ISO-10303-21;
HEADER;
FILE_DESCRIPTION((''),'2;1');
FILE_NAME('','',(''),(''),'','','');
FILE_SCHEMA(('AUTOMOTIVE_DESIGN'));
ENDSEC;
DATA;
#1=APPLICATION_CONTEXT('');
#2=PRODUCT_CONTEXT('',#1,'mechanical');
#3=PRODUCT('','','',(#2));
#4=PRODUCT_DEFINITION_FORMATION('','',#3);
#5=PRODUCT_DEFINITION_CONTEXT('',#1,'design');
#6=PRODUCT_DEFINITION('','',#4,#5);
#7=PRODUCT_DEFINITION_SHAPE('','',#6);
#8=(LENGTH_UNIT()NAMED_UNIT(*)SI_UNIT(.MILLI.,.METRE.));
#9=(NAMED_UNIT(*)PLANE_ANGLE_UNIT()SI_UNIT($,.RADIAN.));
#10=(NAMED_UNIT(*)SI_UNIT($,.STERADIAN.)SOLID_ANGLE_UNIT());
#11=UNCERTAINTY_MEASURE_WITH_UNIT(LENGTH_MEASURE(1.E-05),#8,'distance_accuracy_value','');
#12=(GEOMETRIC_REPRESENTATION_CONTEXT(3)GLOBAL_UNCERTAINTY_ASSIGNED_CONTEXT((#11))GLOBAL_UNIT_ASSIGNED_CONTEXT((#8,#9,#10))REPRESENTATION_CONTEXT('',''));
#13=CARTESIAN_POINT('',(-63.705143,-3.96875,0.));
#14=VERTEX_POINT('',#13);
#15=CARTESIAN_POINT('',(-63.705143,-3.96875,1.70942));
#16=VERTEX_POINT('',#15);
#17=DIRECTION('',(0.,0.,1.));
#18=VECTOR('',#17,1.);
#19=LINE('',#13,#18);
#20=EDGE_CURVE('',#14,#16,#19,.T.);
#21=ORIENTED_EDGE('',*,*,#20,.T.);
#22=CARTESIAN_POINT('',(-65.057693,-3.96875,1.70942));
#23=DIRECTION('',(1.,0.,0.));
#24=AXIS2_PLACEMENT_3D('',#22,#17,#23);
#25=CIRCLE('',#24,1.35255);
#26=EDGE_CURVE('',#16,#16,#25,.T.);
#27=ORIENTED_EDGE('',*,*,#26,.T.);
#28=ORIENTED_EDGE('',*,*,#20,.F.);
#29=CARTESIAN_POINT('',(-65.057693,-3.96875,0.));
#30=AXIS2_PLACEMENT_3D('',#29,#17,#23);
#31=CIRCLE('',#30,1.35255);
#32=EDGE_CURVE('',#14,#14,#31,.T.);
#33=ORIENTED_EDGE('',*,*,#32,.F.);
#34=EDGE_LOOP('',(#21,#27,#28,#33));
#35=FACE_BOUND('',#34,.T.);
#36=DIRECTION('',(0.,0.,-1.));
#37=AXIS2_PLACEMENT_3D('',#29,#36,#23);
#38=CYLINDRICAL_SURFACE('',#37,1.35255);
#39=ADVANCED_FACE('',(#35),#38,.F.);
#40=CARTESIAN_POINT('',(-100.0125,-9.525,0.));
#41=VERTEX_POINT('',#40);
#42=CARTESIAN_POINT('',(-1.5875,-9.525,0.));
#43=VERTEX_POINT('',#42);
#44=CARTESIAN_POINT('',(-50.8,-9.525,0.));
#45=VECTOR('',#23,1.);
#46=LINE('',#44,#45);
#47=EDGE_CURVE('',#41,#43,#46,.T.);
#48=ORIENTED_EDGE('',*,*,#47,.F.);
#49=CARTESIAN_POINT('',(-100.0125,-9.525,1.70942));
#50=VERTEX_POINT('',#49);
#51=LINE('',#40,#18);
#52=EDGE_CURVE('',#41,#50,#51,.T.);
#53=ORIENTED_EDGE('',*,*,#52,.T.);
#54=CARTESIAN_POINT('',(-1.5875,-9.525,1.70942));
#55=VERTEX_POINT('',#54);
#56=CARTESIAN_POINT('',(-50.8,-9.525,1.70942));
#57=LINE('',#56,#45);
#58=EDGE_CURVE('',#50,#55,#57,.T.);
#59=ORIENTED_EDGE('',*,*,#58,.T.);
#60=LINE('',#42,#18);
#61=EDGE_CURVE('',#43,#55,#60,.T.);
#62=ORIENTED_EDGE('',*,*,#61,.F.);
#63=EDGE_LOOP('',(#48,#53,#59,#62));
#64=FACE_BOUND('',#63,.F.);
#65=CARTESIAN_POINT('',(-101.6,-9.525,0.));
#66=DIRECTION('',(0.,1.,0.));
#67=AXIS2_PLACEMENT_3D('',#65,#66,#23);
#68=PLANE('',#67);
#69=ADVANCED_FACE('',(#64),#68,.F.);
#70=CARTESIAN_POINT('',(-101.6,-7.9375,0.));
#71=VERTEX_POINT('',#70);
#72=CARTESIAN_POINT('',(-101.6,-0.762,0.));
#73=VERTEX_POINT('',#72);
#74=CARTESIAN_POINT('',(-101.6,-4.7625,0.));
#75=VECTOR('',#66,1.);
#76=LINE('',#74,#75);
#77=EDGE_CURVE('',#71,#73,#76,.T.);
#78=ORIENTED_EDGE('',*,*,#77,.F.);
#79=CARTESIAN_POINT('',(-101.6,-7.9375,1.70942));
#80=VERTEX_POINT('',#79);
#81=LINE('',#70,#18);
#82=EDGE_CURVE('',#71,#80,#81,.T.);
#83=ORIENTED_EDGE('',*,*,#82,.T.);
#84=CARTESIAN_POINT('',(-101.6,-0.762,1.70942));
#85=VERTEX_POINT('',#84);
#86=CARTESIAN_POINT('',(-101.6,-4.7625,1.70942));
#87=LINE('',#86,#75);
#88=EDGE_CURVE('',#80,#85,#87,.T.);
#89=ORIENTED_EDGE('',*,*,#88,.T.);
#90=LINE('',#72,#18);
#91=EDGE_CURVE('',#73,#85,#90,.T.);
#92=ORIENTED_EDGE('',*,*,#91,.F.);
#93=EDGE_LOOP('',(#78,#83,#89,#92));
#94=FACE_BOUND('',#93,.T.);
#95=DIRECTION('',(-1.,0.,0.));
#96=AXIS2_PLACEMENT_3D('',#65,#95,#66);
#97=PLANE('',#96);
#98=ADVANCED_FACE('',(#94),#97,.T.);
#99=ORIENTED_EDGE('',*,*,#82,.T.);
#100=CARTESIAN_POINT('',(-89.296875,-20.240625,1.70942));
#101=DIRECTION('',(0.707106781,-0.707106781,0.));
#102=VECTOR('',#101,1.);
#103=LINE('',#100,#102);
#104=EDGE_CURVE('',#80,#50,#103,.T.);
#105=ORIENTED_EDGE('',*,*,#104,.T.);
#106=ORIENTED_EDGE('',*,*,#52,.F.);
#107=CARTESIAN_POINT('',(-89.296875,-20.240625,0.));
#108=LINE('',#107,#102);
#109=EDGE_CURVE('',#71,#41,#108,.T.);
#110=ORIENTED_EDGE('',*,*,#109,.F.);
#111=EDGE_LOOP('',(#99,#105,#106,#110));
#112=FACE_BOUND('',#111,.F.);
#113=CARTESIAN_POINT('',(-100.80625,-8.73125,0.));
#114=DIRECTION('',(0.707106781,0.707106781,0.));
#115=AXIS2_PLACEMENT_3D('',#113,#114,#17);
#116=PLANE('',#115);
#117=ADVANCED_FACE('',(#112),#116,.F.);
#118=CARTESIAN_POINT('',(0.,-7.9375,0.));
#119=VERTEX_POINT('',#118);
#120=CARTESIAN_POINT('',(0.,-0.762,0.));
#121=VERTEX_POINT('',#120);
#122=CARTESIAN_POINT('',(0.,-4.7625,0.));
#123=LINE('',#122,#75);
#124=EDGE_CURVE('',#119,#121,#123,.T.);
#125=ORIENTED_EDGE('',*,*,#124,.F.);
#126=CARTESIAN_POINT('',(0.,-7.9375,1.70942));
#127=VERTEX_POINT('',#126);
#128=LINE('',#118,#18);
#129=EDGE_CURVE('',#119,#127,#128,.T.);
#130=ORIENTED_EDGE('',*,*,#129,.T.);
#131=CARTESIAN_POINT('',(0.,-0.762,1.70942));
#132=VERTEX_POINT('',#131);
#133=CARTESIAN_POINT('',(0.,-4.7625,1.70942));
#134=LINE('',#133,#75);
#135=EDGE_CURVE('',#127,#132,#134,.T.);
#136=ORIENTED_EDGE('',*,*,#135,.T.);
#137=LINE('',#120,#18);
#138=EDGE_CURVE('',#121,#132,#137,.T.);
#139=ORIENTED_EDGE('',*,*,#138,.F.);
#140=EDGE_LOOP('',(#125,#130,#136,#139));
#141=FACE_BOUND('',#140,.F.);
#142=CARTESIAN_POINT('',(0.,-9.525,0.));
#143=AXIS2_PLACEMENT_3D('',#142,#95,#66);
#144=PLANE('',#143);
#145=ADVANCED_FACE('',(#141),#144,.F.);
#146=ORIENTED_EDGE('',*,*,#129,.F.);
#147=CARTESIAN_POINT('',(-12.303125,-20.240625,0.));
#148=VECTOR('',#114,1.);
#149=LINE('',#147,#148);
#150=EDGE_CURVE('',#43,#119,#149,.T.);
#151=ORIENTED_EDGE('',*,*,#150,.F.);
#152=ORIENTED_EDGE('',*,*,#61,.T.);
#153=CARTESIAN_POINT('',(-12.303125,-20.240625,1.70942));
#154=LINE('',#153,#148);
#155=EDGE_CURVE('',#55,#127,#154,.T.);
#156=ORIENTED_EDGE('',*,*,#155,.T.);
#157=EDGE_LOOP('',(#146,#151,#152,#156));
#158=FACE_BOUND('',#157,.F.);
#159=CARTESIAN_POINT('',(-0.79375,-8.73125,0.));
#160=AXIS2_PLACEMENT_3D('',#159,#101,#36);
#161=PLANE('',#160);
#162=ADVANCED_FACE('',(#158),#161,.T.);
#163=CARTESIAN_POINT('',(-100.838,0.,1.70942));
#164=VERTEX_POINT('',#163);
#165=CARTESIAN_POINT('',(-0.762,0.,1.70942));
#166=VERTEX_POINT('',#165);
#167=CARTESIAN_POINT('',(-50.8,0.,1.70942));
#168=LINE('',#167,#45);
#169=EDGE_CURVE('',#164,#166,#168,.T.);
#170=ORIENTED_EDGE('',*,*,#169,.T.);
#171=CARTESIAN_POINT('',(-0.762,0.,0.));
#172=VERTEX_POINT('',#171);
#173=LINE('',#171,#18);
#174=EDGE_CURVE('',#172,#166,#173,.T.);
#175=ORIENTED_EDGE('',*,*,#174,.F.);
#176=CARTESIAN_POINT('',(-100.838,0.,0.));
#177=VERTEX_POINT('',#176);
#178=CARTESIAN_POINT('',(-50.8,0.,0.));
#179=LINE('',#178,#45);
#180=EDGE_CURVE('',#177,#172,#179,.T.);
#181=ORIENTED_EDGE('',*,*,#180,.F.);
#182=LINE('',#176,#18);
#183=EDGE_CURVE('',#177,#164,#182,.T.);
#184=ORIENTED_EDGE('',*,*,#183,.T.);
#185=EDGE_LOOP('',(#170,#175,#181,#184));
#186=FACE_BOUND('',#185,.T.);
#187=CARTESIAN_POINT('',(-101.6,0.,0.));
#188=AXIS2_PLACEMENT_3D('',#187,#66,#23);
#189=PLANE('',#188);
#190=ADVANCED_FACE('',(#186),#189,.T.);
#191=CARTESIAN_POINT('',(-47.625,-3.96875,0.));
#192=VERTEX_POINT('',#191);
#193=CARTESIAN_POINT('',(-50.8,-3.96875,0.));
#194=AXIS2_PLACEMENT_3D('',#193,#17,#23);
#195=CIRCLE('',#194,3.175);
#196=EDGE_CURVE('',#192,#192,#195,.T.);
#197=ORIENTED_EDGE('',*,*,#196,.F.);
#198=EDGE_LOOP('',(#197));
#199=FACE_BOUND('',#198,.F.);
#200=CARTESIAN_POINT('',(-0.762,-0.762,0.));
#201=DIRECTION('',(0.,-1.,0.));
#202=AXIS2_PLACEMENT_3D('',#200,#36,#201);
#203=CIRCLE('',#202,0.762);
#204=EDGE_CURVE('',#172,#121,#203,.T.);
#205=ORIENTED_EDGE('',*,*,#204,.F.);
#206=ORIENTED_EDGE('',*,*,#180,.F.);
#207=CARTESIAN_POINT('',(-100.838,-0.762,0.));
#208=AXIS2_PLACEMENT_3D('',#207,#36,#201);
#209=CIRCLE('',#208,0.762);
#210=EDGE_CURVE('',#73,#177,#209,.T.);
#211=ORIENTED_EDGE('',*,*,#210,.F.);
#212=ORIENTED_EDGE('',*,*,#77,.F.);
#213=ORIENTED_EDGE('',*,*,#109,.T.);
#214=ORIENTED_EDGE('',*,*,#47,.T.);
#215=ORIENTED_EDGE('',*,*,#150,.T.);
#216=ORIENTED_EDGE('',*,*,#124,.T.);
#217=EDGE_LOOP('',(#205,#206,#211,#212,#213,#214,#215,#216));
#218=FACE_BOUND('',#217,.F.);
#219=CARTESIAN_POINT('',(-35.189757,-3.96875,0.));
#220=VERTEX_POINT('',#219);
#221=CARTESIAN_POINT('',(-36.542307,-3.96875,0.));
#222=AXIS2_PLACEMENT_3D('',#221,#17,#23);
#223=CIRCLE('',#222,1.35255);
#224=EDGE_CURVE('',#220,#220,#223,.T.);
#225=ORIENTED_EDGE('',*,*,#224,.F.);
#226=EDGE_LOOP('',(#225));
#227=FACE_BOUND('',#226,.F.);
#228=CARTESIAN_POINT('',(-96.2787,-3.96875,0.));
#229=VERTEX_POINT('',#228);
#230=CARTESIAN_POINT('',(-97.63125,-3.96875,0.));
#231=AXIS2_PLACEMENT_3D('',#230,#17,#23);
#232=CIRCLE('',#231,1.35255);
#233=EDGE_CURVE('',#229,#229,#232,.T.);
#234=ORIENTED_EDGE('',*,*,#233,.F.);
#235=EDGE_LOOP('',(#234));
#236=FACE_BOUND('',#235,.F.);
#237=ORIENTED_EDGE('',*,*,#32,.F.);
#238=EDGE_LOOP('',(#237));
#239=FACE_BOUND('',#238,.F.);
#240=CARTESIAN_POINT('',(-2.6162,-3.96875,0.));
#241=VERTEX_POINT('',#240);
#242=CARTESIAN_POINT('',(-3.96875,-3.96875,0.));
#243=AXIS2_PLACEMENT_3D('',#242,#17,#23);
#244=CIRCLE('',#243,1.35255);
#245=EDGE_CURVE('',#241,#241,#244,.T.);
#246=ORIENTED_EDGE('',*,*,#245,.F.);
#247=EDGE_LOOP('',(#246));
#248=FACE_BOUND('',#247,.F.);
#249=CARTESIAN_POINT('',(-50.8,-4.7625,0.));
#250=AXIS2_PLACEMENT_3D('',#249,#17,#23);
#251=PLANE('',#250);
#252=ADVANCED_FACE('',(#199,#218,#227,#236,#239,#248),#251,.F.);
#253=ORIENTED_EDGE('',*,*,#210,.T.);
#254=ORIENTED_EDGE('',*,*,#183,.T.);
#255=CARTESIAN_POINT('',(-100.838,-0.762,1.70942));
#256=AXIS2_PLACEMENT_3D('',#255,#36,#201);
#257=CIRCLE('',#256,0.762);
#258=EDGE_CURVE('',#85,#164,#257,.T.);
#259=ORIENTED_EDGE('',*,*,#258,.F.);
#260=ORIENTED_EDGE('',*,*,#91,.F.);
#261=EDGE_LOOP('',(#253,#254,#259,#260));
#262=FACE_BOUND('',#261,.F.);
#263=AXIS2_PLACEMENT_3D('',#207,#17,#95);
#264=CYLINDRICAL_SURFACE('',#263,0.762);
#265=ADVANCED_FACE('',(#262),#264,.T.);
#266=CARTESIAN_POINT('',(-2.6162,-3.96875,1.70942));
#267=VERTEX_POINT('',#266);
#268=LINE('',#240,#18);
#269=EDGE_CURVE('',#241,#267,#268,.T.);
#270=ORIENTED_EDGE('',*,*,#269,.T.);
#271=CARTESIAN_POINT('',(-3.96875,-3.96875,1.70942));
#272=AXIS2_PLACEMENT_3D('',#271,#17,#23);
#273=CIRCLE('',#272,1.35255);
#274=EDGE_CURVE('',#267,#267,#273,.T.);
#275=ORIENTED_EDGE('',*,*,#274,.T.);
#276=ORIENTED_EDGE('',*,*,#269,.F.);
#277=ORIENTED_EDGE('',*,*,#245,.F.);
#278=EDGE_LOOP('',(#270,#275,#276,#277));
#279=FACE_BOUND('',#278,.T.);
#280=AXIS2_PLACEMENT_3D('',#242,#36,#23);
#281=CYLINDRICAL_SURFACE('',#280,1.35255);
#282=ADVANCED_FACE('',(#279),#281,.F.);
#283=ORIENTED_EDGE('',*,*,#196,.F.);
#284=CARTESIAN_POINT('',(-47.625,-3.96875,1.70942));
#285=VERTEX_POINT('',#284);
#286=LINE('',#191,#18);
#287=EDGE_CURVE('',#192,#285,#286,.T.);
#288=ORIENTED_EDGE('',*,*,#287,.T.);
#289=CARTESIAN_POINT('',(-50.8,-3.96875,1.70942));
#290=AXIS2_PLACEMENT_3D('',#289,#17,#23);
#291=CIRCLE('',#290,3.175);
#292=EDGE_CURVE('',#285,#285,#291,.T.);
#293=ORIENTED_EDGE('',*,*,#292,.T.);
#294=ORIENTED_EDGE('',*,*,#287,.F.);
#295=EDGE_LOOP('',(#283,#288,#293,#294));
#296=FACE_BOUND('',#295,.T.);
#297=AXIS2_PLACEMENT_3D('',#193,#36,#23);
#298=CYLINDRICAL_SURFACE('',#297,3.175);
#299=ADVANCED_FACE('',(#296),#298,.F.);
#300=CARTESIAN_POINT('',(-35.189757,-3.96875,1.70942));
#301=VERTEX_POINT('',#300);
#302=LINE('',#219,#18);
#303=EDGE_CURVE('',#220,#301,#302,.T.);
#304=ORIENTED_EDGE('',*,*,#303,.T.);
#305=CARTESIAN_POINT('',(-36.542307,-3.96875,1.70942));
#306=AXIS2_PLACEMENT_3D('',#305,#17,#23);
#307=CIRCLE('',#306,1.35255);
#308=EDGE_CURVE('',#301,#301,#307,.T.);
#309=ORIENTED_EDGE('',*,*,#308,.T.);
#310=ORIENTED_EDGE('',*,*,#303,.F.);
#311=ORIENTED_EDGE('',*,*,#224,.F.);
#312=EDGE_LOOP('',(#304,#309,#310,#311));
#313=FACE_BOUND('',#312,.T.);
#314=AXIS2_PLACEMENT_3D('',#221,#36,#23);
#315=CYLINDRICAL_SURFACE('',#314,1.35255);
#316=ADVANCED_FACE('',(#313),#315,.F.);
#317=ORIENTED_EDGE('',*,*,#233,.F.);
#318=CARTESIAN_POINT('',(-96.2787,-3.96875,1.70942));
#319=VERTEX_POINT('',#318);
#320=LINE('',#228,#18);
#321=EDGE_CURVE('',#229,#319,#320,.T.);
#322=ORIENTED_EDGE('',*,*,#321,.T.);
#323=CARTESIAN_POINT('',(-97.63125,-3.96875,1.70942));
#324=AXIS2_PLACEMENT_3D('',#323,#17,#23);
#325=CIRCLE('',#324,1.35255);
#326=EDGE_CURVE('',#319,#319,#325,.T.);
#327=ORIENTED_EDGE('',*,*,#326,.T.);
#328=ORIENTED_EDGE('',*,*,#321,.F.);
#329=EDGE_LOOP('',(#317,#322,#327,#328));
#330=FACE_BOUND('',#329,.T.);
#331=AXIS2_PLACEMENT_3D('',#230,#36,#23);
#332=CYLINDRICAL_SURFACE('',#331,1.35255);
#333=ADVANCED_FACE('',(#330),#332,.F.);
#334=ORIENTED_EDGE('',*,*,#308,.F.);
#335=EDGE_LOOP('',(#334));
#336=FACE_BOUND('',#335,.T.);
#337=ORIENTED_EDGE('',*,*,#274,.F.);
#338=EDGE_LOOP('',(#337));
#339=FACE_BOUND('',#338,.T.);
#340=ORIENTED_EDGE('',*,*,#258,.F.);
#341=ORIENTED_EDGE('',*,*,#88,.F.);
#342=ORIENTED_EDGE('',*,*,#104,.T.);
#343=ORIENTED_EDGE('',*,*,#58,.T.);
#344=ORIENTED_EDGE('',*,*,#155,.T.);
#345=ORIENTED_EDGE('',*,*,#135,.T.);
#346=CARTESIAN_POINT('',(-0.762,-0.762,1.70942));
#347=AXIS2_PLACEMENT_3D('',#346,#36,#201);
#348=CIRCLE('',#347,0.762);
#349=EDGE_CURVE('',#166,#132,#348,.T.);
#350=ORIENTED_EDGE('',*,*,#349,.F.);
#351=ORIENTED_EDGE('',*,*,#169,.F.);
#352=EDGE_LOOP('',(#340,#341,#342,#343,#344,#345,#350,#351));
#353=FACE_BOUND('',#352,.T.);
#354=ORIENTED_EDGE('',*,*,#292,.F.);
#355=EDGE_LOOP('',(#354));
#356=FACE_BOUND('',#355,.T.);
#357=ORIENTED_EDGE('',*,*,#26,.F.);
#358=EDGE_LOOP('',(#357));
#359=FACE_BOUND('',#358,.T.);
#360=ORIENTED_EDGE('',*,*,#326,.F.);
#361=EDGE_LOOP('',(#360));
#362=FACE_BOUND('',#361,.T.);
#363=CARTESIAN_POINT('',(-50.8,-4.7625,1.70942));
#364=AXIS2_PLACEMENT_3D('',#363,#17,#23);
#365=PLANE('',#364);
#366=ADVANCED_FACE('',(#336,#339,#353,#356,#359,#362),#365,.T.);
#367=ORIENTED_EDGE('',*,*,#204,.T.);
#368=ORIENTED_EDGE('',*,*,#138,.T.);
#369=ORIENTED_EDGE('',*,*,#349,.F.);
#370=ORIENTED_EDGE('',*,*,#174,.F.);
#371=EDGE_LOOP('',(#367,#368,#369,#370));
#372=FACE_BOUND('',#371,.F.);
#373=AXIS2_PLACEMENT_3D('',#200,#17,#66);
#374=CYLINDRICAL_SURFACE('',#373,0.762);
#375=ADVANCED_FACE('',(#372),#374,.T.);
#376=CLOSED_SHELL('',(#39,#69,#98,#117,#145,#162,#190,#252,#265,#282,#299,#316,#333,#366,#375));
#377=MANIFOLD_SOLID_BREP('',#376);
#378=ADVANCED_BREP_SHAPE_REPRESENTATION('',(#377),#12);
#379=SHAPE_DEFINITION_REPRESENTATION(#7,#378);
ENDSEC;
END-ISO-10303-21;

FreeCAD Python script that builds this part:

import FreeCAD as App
import Part
import Sketcher

V = App.Vector
Q = App.Units.Quantity


def edges_at(feature, points):
    """Names of the edges that pass closest to the given points."""
    edges = feature.Shape.Edges
    near = lambda p: min(range(len(edges)), key=lambda i: edges[i].distToShape(Part.Vertex(*p))[0])
    return sorted({f"Edge{near(p) + 1}" for p in points})

doc = App.newDocument("Part")
params = doc.addObject("Spreadsheet::Sheet", "Params")
for row, (alias, value) in enumerate([
    ("sketch1_diameter", "0.25 in"),
    ("sketch1_width", "4 in"),
    ("sketch1_height", "0.375 in"),
    ("pad1_length", "0.0673 in"),
    ("fillet_radius", "0.03 in"),
    ("chamfer_size", "0.0625 in"),
], start=1):
    params.set(f"A{row}", alias)
    params.set(f"B{row}", "=" + value)
    params.setAlias(f"B{row}", alias)

body = doc.addObject("PartDesign::Body", "Body")

sketch1 = body.newObject("Sketcher::SketchObject", "Sketch")
sketch1.AttachmentSupport = (doc.getObject("XY_Plane"), [""])
sketch1.MapMode = "FlatFace"
sketch1.addGeometry(Part.LineSegment(V(-101.6, 0, 0), V(-101.6, -9.525, 0)), False)
sketch1.addGeometry(Part.LineSegment(V(-101.6, -9.525, 0), V(0, -9.525, 0)), False)
sketch1.addGeometry(Part.LineSegment(V(0, -9.525, 0), V(0, 0, 0)), False)
sketch1.addGeometry(Part.LineSegment(V(0, 0, 0), V(-101.6, 0, 0)), False)
sketch1.addGeometry(Part.Circle(V(-97.63125, -3.96875, 0), V(0, 0, 1), 1.35255), False)
sketch1.addGeometry(Part.Circle(V(-65.057693, -3.96875, 0), V(0, 0, 1), 1.35255), False)
sketch1.addGeometry(Part.Circle(V(-50.8, -3.96875, 0), V(0, 0, 1), 3.175), False)
sketch1.addGeometry(Part.Circle(V(-36.542307, -3.96875, 0), V(0, 0, 1), 1.35255), False)
sketch1.addGeometry(Part.Circle(V(-3.96875, -3.96875, 0), V(0, 0, 1), 1.35255), False)
sketch1.addConstraint(Sketcher.Constraint("Coincident", 0, 2, 1, 1))
sketch1.addConstraint(Sketcher.Constraint("Coincident", 1, 2, 2, 1))
sketch1.addConstraint(Sketcher.Constraint("Coincident", 2, 2, 3, 1))
sketch1.addConstraint(Sketcher.Constraint("Coincident", 3, 2, 0, 1))
sketch1.addConstraint(Sketcher.Constraint("Vertical", 0))
sketch1.addConstraint(Sketcher.Constraint("Horizontal", 1))
sketch1.addConstraint(Sketcher.Constraint("Vertical", 2))
sketch1.addConstraint(Sketcher.Constraint("Horizontal", 3))
sketch1.addConstraint(Sketcher.Constraint("Coincident", 2, 2, -1, 1))
sketch1.addConstraint(Sketcher.Constraint("Equal", 4, 5))
sketch1.addConstraint(Sketcher.Constraint("Equal", 5, 7))
sketch1.addConstraint(Sketcher.Constraint("Equal", 7, 8))
sketch1.addConstraint(Sketcher.Constraint("Horizontal", 4, 3, 5, 3))
sketch1.addConstraint(Sketcher.Constraint("Horizontal", 5, 3, 6, 3))
sketch1.addConstraint(Sketcher.Constraint("Horizontal", 6, 3, 7, 3))
sketch1.addConstraint(Sketcher.Constraint("Horizontal", 7, 3, 8, 3))
sketch1.addConstraint(Sketcher.Constraint("Diameter", 6, Q("0.25 in")))
sketch1.addConstraint(Sketcher.Constraint("DistanceX", 1, 1, 1, 2, Q("4 in")))
sketch1.addConstraint(Sketcher.Constraint("DistanceX", 6, 3, -1, 1, Q("2 in")))
sketch1.addConstraint(Sketcher.Constraint("Diameter", 4, Q("0.1065 in")))
sketch1.addConstraint(Sketcher.Constraint("DistanceY", 0, 2, 0, 1, Q("0.375 in")))
sketch1.addConstraint(Sketcher.Constraint("DistanceX", 4, 3, -1, 1, Q("3.84375 in")))
sketch1.addConstraint(Sketcher.Constraint("DistanceY", 4, 3, -1, 1, Q("0.15625 in")))
sketch1.addConstraint(Sketcher.Constraint("DistanceX", 8, 3, -1, 1, Q("0.15625 in")))
sketch1.addConstraint(Sketcher.Constraint("DistanceX", 5, 3, -1, 1, Q("65.057693 mm")))
sketch1.addConstraint(Sketcher.Constraint("DistanceX", 7, 3, -1, 1, Q("36.542307 mm")))
sketch1.setExpression("Constraints[16]", "Params.sketch1_diameter")
sketch1.setExpression("Constraints[17]", "Params.sketch1_width")
sketch1.setExpression("Constraints[20]", "Params.sketch1_height")
pad1 = body.newObject("PartDesign::Pad", "Pad")
pad1.Profile = sketch1
pad1.setExpression("Length", "Params.pad1_length")
doc.recompute()

fillet = body.newObject("PartDesign::Fillet", "Fillet")
fillet.Base = (pad1, edges_at(pad1, [(-101.6, 0, 0.855), (0, 0, 0.855)]))
fillet.setExpression("Radius", "Params.fillet_radius")
doc.recompute()

chamfer = body.newObject("PartDesign::Chamfer", "Chamfer")
chamfer.Base = (fillet, edges_at(fillet, [(0, -9.525, 0.855), (-101.6, -9.525, 0.855)]))
chamfer.setExpression("Size", "Params.chamfer_size")

doc.recompute()
